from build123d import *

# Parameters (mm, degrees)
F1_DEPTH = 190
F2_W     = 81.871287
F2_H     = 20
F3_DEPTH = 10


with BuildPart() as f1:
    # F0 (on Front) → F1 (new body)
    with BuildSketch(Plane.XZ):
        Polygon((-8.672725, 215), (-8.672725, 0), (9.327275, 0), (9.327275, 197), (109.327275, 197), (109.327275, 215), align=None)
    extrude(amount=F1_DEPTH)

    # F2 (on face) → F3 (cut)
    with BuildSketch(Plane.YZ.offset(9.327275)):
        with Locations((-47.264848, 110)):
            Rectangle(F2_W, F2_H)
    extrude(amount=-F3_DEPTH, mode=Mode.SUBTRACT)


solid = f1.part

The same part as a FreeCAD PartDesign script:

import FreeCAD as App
import Part
import Sketcher

V = App.Vector
Q = App.Units.Quantity


def add_polygon(sketch, points):
    """Adds a closed chain of lines whose ends are joined by coincident constraints."""
    first, n = sketch.GeometryCount, len(points)
    for a, b in zip(points, points[1:] + points[:1]):
        sketch.addGeometry(Part.LineSegment(App.Vector(*a, 0), App.Vector(*b, 0)), False)
    for i in range(n):
        sketch.addConstraint(Sketcher.Constraint("Coincident", first + i, 2, first + (i + 1) % n, 1))

doc = App.newDocument("Part")
body = doc.addObject("PartDesign::Body", "Body")

# Sketch on XZ plane
sketch1 = body.newObject("Sketcher::SketchObject", "Sketch")
sketch1.AttachmentSupport = (doc.getObject("XZ_Plane"), [""])
sketch1.MapMode = "FlatFace"
add_polygon(sketch1, [(-8.672725, 215), (-8.672725, 0), (9.327275, 0), (9.327275, 197), (109.327275, 197), (109.327275, 215)])  # lines 0-5
sketch1.addConstraint([
    Sketcher.Constraint("Vertical", 0),
    Sketcher.Constraint("Horizontal", 1),
    Sketcher.Constraint("Vertical", 2),
    Sketcher.Constraint("Horizontal", 3),
    Sketcher.Constraint("Vertical", 4),
    Sketcher.Constraint("Horizontal", 5),
    Sketcher.Constraint("PointOnObject", 0, 2, -1),
    Sketcher.Constraint("Equal", 1, 4),
    Sketcher.Constraint("DistanceX", 1, 1, 1, 2, Q("18 mm")),
    Sketcher.Constraint("DistanceX", 3, 1, 3, 2, Q("100 mm")),
    Sketcher.Constraint("DistanceY", 0, 2, 0, 1, Q("215 mm")),
    Sketcher.Constraint("DistanceX", 0, 2, -1, 1, Q("8.672725 mm")),
])
pad1 = body.newObject("PartDesign::Pad", "Pad")
pad1.Profile = sketch1
pad1.Length = 190

# Sketch on YZ plane
sketch2 = body.newObject("Sketcher::SketchObject", "Sketch001")
sketch2.AttachmentSupport = (doc.getObject("YZ_Plane"), [""])
sketch2.MapMode = "FlatFace"
sketch2.AttachmentOffset = App.Placement(V(0, 0, 9.327275), App.Rotation())
add_polygon(sketch2, [(-88.200491, 120), (-88.200491, 100), (-6.329205, 100), (-6.329205, 120)])  # lines 0-3
sketch2.addConstraint([
    Sketcher.Constraint("Vertical", 0),
    Sketcher.Constraint("Horizontal", 1),
    Sketcher.Constraint("Vertical", 2),
    Sketcher.Constraint("Horizontal", 3),
    Sketcher.Constraint("DistanceY", 0, 2, 0, 1, Q("20 mm")),
    Sketcher.Constraint("DistanceY", -1, 1, 0, 2, Q("100 mm")),
    Sketcher.Constraint("DistanceX", 1, 1, 1, 2, Q("81.871287 mm")),
    Sketcher.Constraint("DistanceX", 0, 2, -1, 1, Q("88.200491 mm")),
])
pocket1 = body.newObject("PartDesign::Pocket", "Pocket")
pocket1.Profile = sketch2
pocket1.Length = 10

doc.recompute()
